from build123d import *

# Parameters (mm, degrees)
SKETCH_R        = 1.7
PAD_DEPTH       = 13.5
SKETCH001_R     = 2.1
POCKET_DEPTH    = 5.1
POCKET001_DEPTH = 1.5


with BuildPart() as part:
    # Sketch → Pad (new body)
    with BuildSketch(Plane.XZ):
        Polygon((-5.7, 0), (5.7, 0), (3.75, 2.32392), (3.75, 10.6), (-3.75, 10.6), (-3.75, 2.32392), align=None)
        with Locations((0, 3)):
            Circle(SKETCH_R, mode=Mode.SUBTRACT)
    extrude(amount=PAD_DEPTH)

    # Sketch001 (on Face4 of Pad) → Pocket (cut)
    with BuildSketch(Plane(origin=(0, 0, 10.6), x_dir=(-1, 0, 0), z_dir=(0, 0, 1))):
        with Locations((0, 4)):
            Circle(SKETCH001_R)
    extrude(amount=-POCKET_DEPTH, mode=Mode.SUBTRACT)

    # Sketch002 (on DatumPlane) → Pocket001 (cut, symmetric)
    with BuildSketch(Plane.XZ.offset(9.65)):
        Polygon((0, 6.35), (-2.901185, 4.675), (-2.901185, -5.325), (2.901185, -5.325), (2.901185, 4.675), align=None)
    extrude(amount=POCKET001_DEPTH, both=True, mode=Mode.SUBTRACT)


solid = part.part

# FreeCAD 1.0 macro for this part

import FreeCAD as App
import Part
import Sketcher

V = App.Vector
Q = App.Units.Quantity

doc = App.newDocument("Part")
params = doc.addObject("Spreadsheet::Sheet", "Params")
for row, (alias, value) in enumerate([
    ("sketch1_diameter", "3.4 mm"),
    ("sketch1_width", "11.4 mm"),
    ("sketch1_width2", "7.5 mm"),
    ("pad1_length", "13.5 mm"),
    ("sketch2_diameter", "4.2 mm"),
    ("pocket1_length", "5.1 mm"),
    ("sketch3_height", "10 mm"),
    ("sketch3_length", "3.35 mm"),
    ("pocket2_length", "3 mm"),
], start=1):
    params.set(f"A{row}", alias)
    params.set(f"B{row}", "=" + value)
    params.setAlias(f"B{row}", alias)

body = doc.addObject("PartDesign::Body", "Body")

# Sketch on XZ plane
sketch1 = body.newObject("Sketcher::SketchObject", "Sketch")
sketch1.AttachmentSupport = (doc.getObject("XZ_Plane"), [""])
sketch1.MapMode = "FlatFace"
sketch1.addGeometry([
    Part.LineSegment(V(-5.7, 0, 0), V(5.7, 0, 0)),  # 0
    Part.LineSegment(V(5.7, 0, 0), V(3.8, 2.3, 0)),  # 1
    Part.LineSegment(V(3.8, 2.3, 0), V(3.8, 10.6, 0)),  # 2
    Part.LineSegment(V(3.8, 10.6, 0), V(-3.8, 10.6, 0)),  # 3
    Part.LineSegment(V(-3.8, 10.6, 0), V(-3.8, 2.3, 0)),  # 4
    Part.LineSegment(V(-3.8, 2.3, 0), V(-5.7, 0, 0)),  # 5
    Part.Circle(V(0, 3, 0), V(0, 0, 1), 1.7),  # 6
], False)
sketch1.addConstraint([
    Sketcher.Constraint("Coincident", 0, 2, 1, 1),
    Sketcher.Constraint("Coincident", 1, 2, 2, 1),
    Sketcher.Constraint("Coincident", 2, 2, 3, 1),
    Sketcher.Constraint("Coincident", 3, 2, 4, 1),
    Sketcher.Constraint("Coincident", 4, 2, 5, 1),
    Sketcher.Constraint("Coincident", 5, 2, 0, 1),
    Sketcher.Constraint("Horizontal", 0),
    Sketcher.Constraint("Vertical", 2),
    Sketcher.Constraint("Horizontal", 3),
    Sketcher.Constraint("Vertical", 4),
    Sketcher.Constraint("Symmetric", 0, 2, 5, 2, -1, 1),
    Sketcher.Constraint("Symmetric", 1, 2, 4, 2, -2),
    Sketcher.Constraint("PointOnObject", 6, 3, -2),
    Sketcher.Constraint("Diameter", 6, 3.4),
    Sketcher.Constraint("Angle", 1, Q("129.999994 deg")),
    Sketcher.Constraint("DistanceX", 0, 1, 0, 2, 11.4),
    Sketcher.Constraint("DistanceX", 3, 2, 3, 1, 7.5),
    Sketcher.Constraint("DistanceY", -1, 1, 6, 3, 3.0),
    Sketcher.Constraint("DistanceY", -1, 1, 2, 2, 10.6),
])
sketch1.setExpression("Constraints[13]", "Params.sketch1_diameter")
sketch1.setExpression("Constraints[15]", "Params.sketch1_width")
sketch1.setExpression("Constraints[16]", "Params.sketch1_width2")
pad1 = body.newObject("PartDesign::Pad", "Pad")
pad1.Profile = sketch1
pad1.setExpression("Length", "Params.pad1_length")

# Sketch on XY plane
sketch2 = body.newObject("Sketcher::SketchObject", "Sketch001")
sketch2.AttachmentSupport = (doc.getObject("XY_Plane"), [""])
sketch2.MapMode = "FlatFace"
sketch2.AttachmentOffset = App.Placement(V(0, 0, 10.6), App.Rotation())
sketch2.addGeometry(Part.Circle(V(0, -4, 0), V(0, 0, 1), 2.1), False)
sketch2.addConstraint([
    Sketcher.Constraint("PointOnObject", 0, 3, -2),
    Sketcher.Constraint("Diameter", 0, 4.2),
    Sketcher.Constraint("DistanceY", 0, 3, -1, 1, 4.0),
])
sketch2.setExpression("Constraints[1]", "Params.sketch2_diameter")
pocket1 = body.newObject("PartDesign::Pocket", "Pocket")
pocket1.Profile = sketch2
pocket1.setExpression("Length", "Params.pocket1_length")

# Sketch on XZ plane
sketch3 = body.newObject("Sketcher::SketchObject", "Sketch002")
sketch3.AttachmentSupport = (doc.getObject("XZ_Plane"), [""])
sketch3.MapMode = "FlatFace"
sketch3.AttachmentOffset = App.Placement(V(0, 0, 9.65), App.Rotation())
sketch3.addGeometry([
    Part.LineSegment(V(0, 6.3, 0), V(-2.9, 4.7, 0)),  # 0
    Part.LineSegment(V(-2.9, 4.7, 0), V(-2.9, -5.3, 0)),  # 1
    Part.LineSegment(V(-2.9, -5.3, 0), V(2.9, -5.3, 0)),  # 2
    Part.LineSegment(V(2.9, -5.3, 0), V(2.9, 4.7, 0)),  # 3
    Part.LineSegment(V(2.9, 4.7, 0), V(0, 6.3, 0)),  # 4
], False)
sketch3.addConstraint([
    Sketcher.Constraint("Coincident", 0, 2, 1, 1),
    Sketcher.Constraint("Coincident", 1, 2, 2, 1),
    Sketcher.Constraint("Coincident", 2, 2, 3, 1),
    Sketcher.Constraint("Coincident", 3, 2, 4, 1),
    Sketcher.Constraint("Coincident", 4, 2, 0, 1),
    Sketcher.Constraint("Vertical", 1),
    Sketcher.Constraint("Horizontal", 2),
    Sketcher.Constraint("Vertical", 3),
    Sketcher.Constraint("Symmetric", 0, 2, 3, 2, -2),
    Sketcher.Constraint("PointOnObject", 4, 2, -2),
    Sketcher.Constraint("DistanceY", 1, 2, 1, 1, 10.0),
    Sketcher.Constraint("Angle", 0, Q("-149.999999 deg")),
    Sketcher.Constraint("Distance", 0, 3.35),
    Sketcher.Constraint("DistanceY", -1, 1, 4, 2, 6.35),
])
sketch3.setExpression("Constraints[10]", "Params.sketch3_height")
sketch3.setExpression("Constraints[12]", "Params.sketch3_length")
pocket2 = body.newObject("PartDesign::Pocket", "Pocket001")
pocket2.Profile = sketch3
pocket2.setExpression("Length", "Params.pocket2_length")
pocket2.Midplane = True

doc.recompute()
